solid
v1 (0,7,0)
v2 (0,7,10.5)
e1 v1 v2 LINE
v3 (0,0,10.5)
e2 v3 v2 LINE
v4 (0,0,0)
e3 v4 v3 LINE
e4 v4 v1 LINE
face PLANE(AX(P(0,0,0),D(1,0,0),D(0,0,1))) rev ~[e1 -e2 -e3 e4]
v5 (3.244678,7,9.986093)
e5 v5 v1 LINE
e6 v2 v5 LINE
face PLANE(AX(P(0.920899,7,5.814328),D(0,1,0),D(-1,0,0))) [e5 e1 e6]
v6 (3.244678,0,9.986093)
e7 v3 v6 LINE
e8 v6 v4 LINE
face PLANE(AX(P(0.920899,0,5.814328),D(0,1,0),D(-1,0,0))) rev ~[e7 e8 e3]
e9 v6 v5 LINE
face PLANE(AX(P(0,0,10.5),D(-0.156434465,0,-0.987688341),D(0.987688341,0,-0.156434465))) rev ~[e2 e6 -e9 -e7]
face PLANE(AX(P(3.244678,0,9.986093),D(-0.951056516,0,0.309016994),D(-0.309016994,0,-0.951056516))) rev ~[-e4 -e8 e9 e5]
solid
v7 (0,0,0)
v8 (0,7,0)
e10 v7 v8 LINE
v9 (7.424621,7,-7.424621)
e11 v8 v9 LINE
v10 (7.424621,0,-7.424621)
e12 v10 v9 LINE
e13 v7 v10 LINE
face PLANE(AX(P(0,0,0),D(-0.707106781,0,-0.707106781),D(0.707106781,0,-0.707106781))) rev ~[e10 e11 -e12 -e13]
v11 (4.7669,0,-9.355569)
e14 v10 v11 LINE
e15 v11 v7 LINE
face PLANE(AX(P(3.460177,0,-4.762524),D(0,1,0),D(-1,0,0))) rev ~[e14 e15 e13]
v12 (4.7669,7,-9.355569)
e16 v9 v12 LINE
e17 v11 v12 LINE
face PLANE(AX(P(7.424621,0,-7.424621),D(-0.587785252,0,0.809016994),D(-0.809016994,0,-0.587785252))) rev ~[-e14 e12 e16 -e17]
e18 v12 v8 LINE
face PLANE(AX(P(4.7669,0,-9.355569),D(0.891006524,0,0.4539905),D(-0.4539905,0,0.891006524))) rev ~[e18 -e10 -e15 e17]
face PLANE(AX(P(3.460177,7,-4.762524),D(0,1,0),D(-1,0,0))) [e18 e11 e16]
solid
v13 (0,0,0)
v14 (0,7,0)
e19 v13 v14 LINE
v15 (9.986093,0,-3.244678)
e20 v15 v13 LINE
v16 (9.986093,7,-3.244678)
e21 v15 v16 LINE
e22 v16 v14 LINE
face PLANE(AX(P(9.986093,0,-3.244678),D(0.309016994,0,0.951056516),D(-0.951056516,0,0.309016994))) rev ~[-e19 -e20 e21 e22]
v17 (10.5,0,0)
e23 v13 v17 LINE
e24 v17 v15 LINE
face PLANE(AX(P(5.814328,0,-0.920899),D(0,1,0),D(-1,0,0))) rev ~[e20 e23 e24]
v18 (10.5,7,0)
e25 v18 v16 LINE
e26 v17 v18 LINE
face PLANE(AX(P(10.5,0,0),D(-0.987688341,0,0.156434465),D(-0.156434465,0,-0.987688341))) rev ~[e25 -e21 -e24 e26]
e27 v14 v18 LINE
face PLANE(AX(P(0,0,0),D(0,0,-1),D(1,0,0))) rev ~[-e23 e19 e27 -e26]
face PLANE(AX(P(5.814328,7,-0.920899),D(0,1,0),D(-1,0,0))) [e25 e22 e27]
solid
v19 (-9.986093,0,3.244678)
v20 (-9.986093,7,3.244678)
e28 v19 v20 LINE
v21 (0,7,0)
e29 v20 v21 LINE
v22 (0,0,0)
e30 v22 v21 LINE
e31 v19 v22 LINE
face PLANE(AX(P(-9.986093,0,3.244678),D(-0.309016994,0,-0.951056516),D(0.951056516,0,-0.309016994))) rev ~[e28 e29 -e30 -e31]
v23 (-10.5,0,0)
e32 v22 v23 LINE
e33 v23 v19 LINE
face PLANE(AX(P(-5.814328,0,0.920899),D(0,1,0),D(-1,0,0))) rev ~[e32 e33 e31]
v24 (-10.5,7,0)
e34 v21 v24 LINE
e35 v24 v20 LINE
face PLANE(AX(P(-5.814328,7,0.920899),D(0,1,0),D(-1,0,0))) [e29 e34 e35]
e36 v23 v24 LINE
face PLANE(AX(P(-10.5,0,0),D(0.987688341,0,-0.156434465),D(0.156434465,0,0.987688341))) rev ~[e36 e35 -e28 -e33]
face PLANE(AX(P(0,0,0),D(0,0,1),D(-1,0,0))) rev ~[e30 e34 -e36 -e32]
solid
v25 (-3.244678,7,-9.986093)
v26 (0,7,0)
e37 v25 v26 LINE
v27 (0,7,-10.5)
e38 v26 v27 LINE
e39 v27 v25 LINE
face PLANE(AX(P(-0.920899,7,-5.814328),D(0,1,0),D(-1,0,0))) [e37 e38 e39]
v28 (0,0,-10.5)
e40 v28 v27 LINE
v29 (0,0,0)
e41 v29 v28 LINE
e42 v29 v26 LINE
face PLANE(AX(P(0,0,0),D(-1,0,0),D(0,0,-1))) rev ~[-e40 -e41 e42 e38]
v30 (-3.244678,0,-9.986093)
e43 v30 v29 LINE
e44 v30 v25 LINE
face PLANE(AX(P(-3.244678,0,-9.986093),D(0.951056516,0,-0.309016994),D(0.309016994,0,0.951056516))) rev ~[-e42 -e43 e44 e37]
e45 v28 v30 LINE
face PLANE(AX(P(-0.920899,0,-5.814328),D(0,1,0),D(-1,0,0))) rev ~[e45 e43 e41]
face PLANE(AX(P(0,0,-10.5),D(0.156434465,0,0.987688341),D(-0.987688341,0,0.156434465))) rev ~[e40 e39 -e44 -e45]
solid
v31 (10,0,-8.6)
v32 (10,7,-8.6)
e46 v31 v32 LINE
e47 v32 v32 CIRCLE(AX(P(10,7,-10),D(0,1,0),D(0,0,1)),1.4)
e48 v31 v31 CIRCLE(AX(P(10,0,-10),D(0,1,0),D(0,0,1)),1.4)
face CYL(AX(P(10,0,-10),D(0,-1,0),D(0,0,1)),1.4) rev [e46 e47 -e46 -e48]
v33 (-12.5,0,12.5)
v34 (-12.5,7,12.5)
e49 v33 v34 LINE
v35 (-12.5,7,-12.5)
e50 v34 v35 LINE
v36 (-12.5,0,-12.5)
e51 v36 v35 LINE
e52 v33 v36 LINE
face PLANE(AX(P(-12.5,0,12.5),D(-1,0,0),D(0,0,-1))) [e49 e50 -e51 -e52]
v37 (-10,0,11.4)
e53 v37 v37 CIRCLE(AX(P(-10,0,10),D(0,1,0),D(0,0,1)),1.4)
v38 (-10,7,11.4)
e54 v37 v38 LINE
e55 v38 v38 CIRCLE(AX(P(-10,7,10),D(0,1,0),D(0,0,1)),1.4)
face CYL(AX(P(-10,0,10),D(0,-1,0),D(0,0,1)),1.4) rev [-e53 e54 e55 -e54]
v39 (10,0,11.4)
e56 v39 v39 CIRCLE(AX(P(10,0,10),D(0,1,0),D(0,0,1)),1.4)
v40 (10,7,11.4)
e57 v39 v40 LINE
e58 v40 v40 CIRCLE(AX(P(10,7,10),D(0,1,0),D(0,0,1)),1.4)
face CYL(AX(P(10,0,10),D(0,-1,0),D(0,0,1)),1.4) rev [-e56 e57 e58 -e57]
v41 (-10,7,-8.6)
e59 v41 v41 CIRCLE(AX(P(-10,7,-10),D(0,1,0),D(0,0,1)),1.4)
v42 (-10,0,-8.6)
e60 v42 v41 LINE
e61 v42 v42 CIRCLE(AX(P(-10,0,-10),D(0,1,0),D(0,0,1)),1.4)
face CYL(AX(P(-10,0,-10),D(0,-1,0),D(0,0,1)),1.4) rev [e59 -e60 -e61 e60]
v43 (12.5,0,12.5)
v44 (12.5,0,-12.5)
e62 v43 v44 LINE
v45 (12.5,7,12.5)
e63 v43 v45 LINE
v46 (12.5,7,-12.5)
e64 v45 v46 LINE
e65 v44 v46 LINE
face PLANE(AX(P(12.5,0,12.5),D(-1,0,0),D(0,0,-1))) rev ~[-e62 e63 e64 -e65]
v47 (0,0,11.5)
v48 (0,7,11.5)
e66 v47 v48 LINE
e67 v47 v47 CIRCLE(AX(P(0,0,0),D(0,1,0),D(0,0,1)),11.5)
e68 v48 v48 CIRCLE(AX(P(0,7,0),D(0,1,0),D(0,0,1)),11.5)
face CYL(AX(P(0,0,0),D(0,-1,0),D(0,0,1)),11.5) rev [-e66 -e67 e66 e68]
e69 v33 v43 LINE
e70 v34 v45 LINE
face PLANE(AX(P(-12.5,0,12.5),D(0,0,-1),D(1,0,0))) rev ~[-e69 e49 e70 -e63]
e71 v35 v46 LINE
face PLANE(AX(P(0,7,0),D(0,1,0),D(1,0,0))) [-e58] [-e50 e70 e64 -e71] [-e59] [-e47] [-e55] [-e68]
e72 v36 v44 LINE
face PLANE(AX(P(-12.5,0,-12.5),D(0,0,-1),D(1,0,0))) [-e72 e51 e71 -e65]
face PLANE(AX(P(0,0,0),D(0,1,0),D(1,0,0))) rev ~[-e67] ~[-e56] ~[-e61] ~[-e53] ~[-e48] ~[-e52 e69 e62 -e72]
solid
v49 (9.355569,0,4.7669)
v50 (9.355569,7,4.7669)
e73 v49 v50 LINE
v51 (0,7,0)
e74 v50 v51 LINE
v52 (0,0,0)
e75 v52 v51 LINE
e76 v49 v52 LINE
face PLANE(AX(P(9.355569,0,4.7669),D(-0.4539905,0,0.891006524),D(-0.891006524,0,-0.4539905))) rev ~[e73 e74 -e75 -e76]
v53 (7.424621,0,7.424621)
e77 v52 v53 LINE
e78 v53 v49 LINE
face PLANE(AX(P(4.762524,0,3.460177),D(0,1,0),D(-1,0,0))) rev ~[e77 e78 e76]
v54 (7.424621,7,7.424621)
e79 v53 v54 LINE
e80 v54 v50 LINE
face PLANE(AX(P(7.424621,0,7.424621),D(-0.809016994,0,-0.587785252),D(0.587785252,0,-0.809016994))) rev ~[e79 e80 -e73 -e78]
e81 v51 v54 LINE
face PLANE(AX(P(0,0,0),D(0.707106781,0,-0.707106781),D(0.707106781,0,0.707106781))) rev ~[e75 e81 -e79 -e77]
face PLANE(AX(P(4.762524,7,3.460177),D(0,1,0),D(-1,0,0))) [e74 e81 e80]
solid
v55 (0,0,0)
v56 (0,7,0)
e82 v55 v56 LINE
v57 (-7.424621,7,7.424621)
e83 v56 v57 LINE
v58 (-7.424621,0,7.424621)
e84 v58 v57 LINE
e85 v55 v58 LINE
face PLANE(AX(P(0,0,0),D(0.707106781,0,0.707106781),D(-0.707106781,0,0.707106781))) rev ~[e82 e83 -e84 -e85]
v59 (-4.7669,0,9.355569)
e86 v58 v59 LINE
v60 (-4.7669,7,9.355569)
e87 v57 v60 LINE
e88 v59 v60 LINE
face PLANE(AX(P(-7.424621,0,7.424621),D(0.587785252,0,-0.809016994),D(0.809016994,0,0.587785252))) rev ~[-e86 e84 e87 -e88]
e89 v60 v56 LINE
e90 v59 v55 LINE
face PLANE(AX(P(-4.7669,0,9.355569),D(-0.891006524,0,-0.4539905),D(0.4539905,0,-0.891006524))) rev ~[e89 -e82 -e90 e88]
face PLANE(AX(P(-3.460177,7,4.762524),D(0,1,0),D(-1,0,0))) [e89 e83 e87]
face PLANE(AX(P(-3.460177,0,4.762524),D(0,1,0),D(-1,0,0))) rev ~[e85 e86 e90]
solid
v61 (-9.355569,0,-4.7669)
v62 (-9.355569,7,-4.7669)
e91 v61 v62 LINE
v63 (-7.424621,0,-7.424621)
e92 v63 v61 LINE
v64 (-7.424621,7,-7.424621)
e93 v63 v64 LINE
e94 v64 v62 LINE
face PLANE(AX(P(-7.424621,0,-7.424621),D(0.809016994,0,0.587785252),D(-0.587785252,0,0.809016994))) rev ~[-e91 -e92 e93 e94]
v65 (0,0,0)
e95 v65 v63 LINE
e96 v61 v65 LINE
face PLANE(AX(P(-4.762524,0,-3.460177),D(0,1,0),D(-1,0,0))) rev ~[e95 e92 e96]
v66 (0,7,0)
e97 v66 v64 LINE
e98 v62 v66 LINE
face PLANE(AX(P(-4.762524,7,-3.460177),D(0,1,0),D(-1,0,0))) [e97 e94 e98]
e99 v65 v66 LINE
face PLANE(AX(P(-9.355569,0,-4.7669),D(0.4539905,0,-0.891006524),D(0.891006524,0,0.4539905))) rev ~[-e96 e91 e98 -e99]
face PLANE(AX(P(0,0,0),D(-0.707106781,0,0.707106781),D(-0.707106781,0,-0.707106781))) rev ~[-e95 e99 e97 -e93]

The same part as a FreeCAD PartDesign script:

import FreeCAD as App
import Part
import Sketcher
Q = App.Units.Quantity


def add_polygon(sketch, points):
    """Adds a closed chain of lines whose ends are joined by coincident constraints."""
    first, n = sketch.GeometryCount, len(points)
    for a, b in zip(points, points[1:] + points[:1]):
        sketch.addGeometry(Part.LineSegment(App.Vector(*a, 0), App.Vector(*b, 0)), False)
    for i in range(n):
        sketch.addConstraint(Sketcher.Constraint("Coincident", first + i, 2, first + (i + 1) % n, 1))

doc = App.newDocument("Part")
body = doc.addObject("PartDesign::Body", "Body")

# Sketch on XZ plane
sketch1 = body.newObject("Sketcher::SketchObject", "Sketch")
sketch1.AttachmentSupport = (doc.getObject("XZ_Plane"), [""])
sketch1.MapMode = "FlatFace"
add_polygon(sketch1, [(-12.5, -12.5), (-12.5, 12.5), (12.5, 12.5), (12.5, -12.5)])  # lines 0-3
sketch1.addGeometry(Part.Circle(App.Vector(-10, 10, 0), App.Vector(0, 0, 1), 1.4), False)  # 4
sketch1.addGeometry(Part.Circle(App.Vector(10, 10, 0), App.Vector(0, 0, 1), 1.4), False)  # 5
sketch1.addGeometry(Part.Circle(App.Vector(-10, -10, 0), App.Vector(0, 0, 1), 1.4), False)  # 6
sketch1.addGeometry(Part.Circle(App.Vector(0, 0, 0), App.Vector(0, 0, 1), 11.5), False)  # 7
sketch1.addGeometry(Part.Circle(App.Vector(10, -10, 0), App.Vector(0, 0, 1), 1.4), False)  # 8
sketch1.addConstraint([
    Sketcher.Constraint("Vertical", 0),
    Sketcher.Constraint("Horizontal", 1),
    Sketcher.Constraint("Vertical", 2),
    Sketcher.Constraint("Horizontal", 3),
    Sketcher.Constraint("Coincident", 7, 3, -1, 1),
    Sketcher.Constraint("Equal", 4, 5),
    Sketcher.Constraint("Equal", 5, 6),
    Sketcher.Constraint("Equal", 6, 8),
    Sketcher.Constraint("Symmetric", 5, 3, 6, 3, -1, 1),
    Sketcher.Constraint("Symmetric", 4, 3, 8, 3, -1, 1),
    Sketcher.Constraint("Symmetric", 0, 2, 2, 2, -1, 1),
    Sketcher.Constraint("Symmetric", 4, 3, 5, 3, -2),
    Sketcher.Constraint("Equal", 3, 0),
    Sketcher.Constraint("Diameter", 7, 23.0),
    Sketcher.Constraint("Diameter", 4, 2.8),
    Sketcher.Constraint("DistanceX", 1, 1, 1, 2, 25.0),
    Sketcher.Constraint("DistanceX", 4, 3, -1, 1, 10.0),
    Sketcher.Constraint("DistanceY", -1, 1, 4, 3, 10.0),
])
pad1 = body.newObject("PartDesign::Pad", "Pad")
pad1.Profile = sketch1
pad1.Length = 7
pad1.Reversed = True
body2 = doc.addObject("PartDesign::Body", "Body001")

# Sketch on XZ plane
sketch2 = body2.newObject("Sketcher::SketchObject", "Sketch001")
sketch2.AttachmentSupport = (doc.getObject("XZ_Plane001"), [""])
sketch2.MapMode = "FlatFace"
add_polygon(sketch2, [(7.4, -7.4), (0, 0), (4.8, -9.4)])  # lines 0-2
sketch2.addConstraint([
    Sketcher.Constraint("Coincident", 0, 2, -1, 1),
    Sketcher.Constraint("Equal", 0, 1),
    Sketcher.Constraint("Angle", 0, Q("135 deg")),
    Sketcher.Constraint("Angle", 1, Q("-63 deg")),
    Sketcher.Constraint("Distance", 0, 10.5),
])
pad2 = body2.newObject("PartDesign::Pad", "Pad001")
pad2.Profile = sketch2
pad2.Length = 7
pad2.Reversed = True
body3 = doc.addObject("PartDesign::Body", "Body002")

# Sketch on XZ plane
sketch3 = body3.newObject("Sketcher::SketchObject", "Sketch002")
sketch3.AttachmentSupport = (doc.getObject("XZ_Plane002"), [""])
sketch3.MapMode = "FlatFace"
add_polygon(sketch3, [(0, 0), (-3.2, -10), (0, -10.5)])  # lines 0-2
sketch3.addConstraint([
    Sketcher.Constraint("Vertical", 2),
    Sketcher.Constraint("Coincident", 2, 2, -1, 1),
    Sketcher.Constraint("Angle", 0, Q("-108 deg")),
    Sketcher.Constraint("Angle", 1, Q("-9 deg")),
    Sketcher.Constraint("DistanceY", 2, 1, 2, 2, 10.5),
])
pad3 = body3.newObject("PartDesign::Pad", "Pad002")
pad3.Profile = sketch3
pad3.Length = 7
pad3.Reversed = True
body4 = doc.addObject("PartDesign::Body", "Body003")

# Sketch on XZ plane
sketch4 = body4.newObject("Sketcher::SketchObject", "Sketch003")
sketch4.AttachmentSupport = (doc.getObject("XZ_Plane003"), [""])
sketch4.MapMode = "FlatFace"
add_polygon(sketch4, [(-7.4, -7.4), (0, 0), (-9.4, -4.8)])  # lines 0-2
sketch4.addConstraint([
    Sketcher.Constraint("Coincident", 0, 2, -1, 1),
    Sketcher.Constraint("Equal", 0, 1),
    Sketcher.Constraint("Angle", 0, Q("45 deg")),
    Sketcher.Constraint("Angle", 1, Q("-153 deg")),
    Sketcher.Constraint("Distance", 0, 10.5),
])
pad4 = body4.newObject("PartDesign::Pad", "Pad003")
pad4.Profile = sketch4
pad4.Length = 7
pad4.Reversed = True
body5 = doc.addObject("PartDesign::Body", "Body004")

# Sketch on XZ plane
sketch5 = body5.newObject("Sketcher::SketchObject", "Sketch004")
sketch5.AttachmentSupport = (doc.getObject("XZ_Plane004"), [""])
sketch5.MapMode = "FlatFace"
add_polygon(sketch5, [(-10.5, 0), (0, 0), (-10, 3.2)])  # lines 0-2
sketch5.addConstraint([
    Sketcher.Constraint("Horizontal", 0),
    Sketcher.Constraint("Coincident", 0, 2, -1, 1),
    Sketcher.Constraint("Angle", 1, Q("162 deg")),
    Sketcher.Constraint("Angle", 2, Q("-99 deg")),
    Sketcher.Constraint("DistanceX", 0, 1, 0, 2, 10.5),
])
pad5 = body5.newObject("PartDesign::Pad", "Pad004")
pad5.Profile = sketch5
pad5.Length = 7
pad5.Reversed = True
body6 = doc.addObject("PartDesign::Body", "Body005")

# Sketch on XZ plane
sketch6 = body6.newObject("Sketcher::SketchObject", "Sketch005")
sketch6.AttachmentSupport = (doc.getObject("XZ_Plane005"), [""])
sketch6.MapMode = "FlatFace"
add_polygon(sketch6, [(-7.4, 7.4), (0, 0), (-4.8, 9.4)])  # lines 0-2
sketch6.addConstraint([
    Sketcher.Constraint("Coincident", 0, 2, -1, 1),
    Sketcher.Constraint("Equal", 0, 1),
    Sketcher.Constraint("Angle", 0, Q("-45 deg")),
    Sketcher.Constraint("Angle", 1, Q("117 deg")),
    Sketcher.Constraint("Distance", 0, 10.5),
])
pad6 = body6.newObject("PartDesign::Pad", "Pad005")
pad6.Profile = sketch6
pad6.Length = 7
pad6.Reversed = True
body7 = doc.addObject("PartDesign::Body", "Body006")

# Sketch on XZ plane
sketch7 = body7.newObject("Sketcher::SketchObject", "Sketch006")
sketch7.AttachmentSupport = (doc.getObject("XZ_Plane006"), [""])
sketch7.MapMode = "FlatFace"
add_polygon(sketch7, [(0, 10.5), (0, 0), (3.2, 10)])  # lines 0-2
sketch7.addConstraint([
    Sketcher.Constraint("Vertical", 0),
    Sketcher.Constraint("Coincident", 0, 2, -1, 1),
    Sketcher.Constraint("Angle", 1, Q("72 deg")),
    Sketcher.Constraint("Angle", 2, Q("171 deg")),
    Sketcher.Constraint("DistanceY", 0, 2, 0, 1, 10.5),
])
pad7 = body7.newObject("PartDesign::Pad", "Pad006")
pad7.Profile = sketch7
pad7.Length = 7
pad7.Reversed = True
body8 = doc.addObject("PartDesign::Body", "Body007")

# Sketch on XZ plane
sketch8 = body8.newObject("Sketcher::SketchObject", "Sketch007")
sketch8.AttachmentSupport = (doc.getObject("XZ_Plane007"), [""])
sketch8.MapMode = "FlatFace"
add_polygon(sketch8, [(7.4, 7.4), (0, 0), (9.4, 4.8)])  # lines 0-2
sketch8.addConstraint([
    Sketcher.Constraint("Coincident", 0, 2, -1, 1),
    Sketcher.Constraint("Equal", 0, 1),
    Sketcher.Constraint("Angle", 0, Q("-135 deg")),
    Sketcher.Constraint("Angle", 1, Q("27 deg")),
    Sketcher.Constraint("Distance", 0, 10.5),
])
pad8 = body8.newObject("PartDesign::Pad", "Pad007")
pad8.Profile = sketch8
pad8.Length = 7
pad8.Reversed = True
body9 = doc.addObject("PartDesign::Body", "Body008")

# Sketch on XZ plane
sketch9 = body9.newObject("Sketcher::SketchObject", "Sketch008")
sketch9.AttachmentSupport = (doc.getObject("XZ_Plane008"), [""])
sketch9.MapMode = "FlatFace"
add_polygon(sketch9, [(10.5, 0), (0, 0), (10, -3.2)])  # lines 0-2
sketch9.addConstraint([
    Sketcher.Constraint("Horizontal", 0),
    Sketcher.Constraint("Coincident", 0, 2, -1, 1),
    Sketcher.Constraint("Angle", 1, Q("-18 deg")),
    Sketcher.Constraint("Angle", 2, Q("81 deg")),
    Sketcher.Constraint("DistanceX", 0, 2, 0, 1, 10.5),
])
pad9 = body9.newObject("PartDesign::Pad", "Pad008")
pad9.Profile = sketch9
pad9.Length = 7
pad9.Reversed = True

doc.recompute()
